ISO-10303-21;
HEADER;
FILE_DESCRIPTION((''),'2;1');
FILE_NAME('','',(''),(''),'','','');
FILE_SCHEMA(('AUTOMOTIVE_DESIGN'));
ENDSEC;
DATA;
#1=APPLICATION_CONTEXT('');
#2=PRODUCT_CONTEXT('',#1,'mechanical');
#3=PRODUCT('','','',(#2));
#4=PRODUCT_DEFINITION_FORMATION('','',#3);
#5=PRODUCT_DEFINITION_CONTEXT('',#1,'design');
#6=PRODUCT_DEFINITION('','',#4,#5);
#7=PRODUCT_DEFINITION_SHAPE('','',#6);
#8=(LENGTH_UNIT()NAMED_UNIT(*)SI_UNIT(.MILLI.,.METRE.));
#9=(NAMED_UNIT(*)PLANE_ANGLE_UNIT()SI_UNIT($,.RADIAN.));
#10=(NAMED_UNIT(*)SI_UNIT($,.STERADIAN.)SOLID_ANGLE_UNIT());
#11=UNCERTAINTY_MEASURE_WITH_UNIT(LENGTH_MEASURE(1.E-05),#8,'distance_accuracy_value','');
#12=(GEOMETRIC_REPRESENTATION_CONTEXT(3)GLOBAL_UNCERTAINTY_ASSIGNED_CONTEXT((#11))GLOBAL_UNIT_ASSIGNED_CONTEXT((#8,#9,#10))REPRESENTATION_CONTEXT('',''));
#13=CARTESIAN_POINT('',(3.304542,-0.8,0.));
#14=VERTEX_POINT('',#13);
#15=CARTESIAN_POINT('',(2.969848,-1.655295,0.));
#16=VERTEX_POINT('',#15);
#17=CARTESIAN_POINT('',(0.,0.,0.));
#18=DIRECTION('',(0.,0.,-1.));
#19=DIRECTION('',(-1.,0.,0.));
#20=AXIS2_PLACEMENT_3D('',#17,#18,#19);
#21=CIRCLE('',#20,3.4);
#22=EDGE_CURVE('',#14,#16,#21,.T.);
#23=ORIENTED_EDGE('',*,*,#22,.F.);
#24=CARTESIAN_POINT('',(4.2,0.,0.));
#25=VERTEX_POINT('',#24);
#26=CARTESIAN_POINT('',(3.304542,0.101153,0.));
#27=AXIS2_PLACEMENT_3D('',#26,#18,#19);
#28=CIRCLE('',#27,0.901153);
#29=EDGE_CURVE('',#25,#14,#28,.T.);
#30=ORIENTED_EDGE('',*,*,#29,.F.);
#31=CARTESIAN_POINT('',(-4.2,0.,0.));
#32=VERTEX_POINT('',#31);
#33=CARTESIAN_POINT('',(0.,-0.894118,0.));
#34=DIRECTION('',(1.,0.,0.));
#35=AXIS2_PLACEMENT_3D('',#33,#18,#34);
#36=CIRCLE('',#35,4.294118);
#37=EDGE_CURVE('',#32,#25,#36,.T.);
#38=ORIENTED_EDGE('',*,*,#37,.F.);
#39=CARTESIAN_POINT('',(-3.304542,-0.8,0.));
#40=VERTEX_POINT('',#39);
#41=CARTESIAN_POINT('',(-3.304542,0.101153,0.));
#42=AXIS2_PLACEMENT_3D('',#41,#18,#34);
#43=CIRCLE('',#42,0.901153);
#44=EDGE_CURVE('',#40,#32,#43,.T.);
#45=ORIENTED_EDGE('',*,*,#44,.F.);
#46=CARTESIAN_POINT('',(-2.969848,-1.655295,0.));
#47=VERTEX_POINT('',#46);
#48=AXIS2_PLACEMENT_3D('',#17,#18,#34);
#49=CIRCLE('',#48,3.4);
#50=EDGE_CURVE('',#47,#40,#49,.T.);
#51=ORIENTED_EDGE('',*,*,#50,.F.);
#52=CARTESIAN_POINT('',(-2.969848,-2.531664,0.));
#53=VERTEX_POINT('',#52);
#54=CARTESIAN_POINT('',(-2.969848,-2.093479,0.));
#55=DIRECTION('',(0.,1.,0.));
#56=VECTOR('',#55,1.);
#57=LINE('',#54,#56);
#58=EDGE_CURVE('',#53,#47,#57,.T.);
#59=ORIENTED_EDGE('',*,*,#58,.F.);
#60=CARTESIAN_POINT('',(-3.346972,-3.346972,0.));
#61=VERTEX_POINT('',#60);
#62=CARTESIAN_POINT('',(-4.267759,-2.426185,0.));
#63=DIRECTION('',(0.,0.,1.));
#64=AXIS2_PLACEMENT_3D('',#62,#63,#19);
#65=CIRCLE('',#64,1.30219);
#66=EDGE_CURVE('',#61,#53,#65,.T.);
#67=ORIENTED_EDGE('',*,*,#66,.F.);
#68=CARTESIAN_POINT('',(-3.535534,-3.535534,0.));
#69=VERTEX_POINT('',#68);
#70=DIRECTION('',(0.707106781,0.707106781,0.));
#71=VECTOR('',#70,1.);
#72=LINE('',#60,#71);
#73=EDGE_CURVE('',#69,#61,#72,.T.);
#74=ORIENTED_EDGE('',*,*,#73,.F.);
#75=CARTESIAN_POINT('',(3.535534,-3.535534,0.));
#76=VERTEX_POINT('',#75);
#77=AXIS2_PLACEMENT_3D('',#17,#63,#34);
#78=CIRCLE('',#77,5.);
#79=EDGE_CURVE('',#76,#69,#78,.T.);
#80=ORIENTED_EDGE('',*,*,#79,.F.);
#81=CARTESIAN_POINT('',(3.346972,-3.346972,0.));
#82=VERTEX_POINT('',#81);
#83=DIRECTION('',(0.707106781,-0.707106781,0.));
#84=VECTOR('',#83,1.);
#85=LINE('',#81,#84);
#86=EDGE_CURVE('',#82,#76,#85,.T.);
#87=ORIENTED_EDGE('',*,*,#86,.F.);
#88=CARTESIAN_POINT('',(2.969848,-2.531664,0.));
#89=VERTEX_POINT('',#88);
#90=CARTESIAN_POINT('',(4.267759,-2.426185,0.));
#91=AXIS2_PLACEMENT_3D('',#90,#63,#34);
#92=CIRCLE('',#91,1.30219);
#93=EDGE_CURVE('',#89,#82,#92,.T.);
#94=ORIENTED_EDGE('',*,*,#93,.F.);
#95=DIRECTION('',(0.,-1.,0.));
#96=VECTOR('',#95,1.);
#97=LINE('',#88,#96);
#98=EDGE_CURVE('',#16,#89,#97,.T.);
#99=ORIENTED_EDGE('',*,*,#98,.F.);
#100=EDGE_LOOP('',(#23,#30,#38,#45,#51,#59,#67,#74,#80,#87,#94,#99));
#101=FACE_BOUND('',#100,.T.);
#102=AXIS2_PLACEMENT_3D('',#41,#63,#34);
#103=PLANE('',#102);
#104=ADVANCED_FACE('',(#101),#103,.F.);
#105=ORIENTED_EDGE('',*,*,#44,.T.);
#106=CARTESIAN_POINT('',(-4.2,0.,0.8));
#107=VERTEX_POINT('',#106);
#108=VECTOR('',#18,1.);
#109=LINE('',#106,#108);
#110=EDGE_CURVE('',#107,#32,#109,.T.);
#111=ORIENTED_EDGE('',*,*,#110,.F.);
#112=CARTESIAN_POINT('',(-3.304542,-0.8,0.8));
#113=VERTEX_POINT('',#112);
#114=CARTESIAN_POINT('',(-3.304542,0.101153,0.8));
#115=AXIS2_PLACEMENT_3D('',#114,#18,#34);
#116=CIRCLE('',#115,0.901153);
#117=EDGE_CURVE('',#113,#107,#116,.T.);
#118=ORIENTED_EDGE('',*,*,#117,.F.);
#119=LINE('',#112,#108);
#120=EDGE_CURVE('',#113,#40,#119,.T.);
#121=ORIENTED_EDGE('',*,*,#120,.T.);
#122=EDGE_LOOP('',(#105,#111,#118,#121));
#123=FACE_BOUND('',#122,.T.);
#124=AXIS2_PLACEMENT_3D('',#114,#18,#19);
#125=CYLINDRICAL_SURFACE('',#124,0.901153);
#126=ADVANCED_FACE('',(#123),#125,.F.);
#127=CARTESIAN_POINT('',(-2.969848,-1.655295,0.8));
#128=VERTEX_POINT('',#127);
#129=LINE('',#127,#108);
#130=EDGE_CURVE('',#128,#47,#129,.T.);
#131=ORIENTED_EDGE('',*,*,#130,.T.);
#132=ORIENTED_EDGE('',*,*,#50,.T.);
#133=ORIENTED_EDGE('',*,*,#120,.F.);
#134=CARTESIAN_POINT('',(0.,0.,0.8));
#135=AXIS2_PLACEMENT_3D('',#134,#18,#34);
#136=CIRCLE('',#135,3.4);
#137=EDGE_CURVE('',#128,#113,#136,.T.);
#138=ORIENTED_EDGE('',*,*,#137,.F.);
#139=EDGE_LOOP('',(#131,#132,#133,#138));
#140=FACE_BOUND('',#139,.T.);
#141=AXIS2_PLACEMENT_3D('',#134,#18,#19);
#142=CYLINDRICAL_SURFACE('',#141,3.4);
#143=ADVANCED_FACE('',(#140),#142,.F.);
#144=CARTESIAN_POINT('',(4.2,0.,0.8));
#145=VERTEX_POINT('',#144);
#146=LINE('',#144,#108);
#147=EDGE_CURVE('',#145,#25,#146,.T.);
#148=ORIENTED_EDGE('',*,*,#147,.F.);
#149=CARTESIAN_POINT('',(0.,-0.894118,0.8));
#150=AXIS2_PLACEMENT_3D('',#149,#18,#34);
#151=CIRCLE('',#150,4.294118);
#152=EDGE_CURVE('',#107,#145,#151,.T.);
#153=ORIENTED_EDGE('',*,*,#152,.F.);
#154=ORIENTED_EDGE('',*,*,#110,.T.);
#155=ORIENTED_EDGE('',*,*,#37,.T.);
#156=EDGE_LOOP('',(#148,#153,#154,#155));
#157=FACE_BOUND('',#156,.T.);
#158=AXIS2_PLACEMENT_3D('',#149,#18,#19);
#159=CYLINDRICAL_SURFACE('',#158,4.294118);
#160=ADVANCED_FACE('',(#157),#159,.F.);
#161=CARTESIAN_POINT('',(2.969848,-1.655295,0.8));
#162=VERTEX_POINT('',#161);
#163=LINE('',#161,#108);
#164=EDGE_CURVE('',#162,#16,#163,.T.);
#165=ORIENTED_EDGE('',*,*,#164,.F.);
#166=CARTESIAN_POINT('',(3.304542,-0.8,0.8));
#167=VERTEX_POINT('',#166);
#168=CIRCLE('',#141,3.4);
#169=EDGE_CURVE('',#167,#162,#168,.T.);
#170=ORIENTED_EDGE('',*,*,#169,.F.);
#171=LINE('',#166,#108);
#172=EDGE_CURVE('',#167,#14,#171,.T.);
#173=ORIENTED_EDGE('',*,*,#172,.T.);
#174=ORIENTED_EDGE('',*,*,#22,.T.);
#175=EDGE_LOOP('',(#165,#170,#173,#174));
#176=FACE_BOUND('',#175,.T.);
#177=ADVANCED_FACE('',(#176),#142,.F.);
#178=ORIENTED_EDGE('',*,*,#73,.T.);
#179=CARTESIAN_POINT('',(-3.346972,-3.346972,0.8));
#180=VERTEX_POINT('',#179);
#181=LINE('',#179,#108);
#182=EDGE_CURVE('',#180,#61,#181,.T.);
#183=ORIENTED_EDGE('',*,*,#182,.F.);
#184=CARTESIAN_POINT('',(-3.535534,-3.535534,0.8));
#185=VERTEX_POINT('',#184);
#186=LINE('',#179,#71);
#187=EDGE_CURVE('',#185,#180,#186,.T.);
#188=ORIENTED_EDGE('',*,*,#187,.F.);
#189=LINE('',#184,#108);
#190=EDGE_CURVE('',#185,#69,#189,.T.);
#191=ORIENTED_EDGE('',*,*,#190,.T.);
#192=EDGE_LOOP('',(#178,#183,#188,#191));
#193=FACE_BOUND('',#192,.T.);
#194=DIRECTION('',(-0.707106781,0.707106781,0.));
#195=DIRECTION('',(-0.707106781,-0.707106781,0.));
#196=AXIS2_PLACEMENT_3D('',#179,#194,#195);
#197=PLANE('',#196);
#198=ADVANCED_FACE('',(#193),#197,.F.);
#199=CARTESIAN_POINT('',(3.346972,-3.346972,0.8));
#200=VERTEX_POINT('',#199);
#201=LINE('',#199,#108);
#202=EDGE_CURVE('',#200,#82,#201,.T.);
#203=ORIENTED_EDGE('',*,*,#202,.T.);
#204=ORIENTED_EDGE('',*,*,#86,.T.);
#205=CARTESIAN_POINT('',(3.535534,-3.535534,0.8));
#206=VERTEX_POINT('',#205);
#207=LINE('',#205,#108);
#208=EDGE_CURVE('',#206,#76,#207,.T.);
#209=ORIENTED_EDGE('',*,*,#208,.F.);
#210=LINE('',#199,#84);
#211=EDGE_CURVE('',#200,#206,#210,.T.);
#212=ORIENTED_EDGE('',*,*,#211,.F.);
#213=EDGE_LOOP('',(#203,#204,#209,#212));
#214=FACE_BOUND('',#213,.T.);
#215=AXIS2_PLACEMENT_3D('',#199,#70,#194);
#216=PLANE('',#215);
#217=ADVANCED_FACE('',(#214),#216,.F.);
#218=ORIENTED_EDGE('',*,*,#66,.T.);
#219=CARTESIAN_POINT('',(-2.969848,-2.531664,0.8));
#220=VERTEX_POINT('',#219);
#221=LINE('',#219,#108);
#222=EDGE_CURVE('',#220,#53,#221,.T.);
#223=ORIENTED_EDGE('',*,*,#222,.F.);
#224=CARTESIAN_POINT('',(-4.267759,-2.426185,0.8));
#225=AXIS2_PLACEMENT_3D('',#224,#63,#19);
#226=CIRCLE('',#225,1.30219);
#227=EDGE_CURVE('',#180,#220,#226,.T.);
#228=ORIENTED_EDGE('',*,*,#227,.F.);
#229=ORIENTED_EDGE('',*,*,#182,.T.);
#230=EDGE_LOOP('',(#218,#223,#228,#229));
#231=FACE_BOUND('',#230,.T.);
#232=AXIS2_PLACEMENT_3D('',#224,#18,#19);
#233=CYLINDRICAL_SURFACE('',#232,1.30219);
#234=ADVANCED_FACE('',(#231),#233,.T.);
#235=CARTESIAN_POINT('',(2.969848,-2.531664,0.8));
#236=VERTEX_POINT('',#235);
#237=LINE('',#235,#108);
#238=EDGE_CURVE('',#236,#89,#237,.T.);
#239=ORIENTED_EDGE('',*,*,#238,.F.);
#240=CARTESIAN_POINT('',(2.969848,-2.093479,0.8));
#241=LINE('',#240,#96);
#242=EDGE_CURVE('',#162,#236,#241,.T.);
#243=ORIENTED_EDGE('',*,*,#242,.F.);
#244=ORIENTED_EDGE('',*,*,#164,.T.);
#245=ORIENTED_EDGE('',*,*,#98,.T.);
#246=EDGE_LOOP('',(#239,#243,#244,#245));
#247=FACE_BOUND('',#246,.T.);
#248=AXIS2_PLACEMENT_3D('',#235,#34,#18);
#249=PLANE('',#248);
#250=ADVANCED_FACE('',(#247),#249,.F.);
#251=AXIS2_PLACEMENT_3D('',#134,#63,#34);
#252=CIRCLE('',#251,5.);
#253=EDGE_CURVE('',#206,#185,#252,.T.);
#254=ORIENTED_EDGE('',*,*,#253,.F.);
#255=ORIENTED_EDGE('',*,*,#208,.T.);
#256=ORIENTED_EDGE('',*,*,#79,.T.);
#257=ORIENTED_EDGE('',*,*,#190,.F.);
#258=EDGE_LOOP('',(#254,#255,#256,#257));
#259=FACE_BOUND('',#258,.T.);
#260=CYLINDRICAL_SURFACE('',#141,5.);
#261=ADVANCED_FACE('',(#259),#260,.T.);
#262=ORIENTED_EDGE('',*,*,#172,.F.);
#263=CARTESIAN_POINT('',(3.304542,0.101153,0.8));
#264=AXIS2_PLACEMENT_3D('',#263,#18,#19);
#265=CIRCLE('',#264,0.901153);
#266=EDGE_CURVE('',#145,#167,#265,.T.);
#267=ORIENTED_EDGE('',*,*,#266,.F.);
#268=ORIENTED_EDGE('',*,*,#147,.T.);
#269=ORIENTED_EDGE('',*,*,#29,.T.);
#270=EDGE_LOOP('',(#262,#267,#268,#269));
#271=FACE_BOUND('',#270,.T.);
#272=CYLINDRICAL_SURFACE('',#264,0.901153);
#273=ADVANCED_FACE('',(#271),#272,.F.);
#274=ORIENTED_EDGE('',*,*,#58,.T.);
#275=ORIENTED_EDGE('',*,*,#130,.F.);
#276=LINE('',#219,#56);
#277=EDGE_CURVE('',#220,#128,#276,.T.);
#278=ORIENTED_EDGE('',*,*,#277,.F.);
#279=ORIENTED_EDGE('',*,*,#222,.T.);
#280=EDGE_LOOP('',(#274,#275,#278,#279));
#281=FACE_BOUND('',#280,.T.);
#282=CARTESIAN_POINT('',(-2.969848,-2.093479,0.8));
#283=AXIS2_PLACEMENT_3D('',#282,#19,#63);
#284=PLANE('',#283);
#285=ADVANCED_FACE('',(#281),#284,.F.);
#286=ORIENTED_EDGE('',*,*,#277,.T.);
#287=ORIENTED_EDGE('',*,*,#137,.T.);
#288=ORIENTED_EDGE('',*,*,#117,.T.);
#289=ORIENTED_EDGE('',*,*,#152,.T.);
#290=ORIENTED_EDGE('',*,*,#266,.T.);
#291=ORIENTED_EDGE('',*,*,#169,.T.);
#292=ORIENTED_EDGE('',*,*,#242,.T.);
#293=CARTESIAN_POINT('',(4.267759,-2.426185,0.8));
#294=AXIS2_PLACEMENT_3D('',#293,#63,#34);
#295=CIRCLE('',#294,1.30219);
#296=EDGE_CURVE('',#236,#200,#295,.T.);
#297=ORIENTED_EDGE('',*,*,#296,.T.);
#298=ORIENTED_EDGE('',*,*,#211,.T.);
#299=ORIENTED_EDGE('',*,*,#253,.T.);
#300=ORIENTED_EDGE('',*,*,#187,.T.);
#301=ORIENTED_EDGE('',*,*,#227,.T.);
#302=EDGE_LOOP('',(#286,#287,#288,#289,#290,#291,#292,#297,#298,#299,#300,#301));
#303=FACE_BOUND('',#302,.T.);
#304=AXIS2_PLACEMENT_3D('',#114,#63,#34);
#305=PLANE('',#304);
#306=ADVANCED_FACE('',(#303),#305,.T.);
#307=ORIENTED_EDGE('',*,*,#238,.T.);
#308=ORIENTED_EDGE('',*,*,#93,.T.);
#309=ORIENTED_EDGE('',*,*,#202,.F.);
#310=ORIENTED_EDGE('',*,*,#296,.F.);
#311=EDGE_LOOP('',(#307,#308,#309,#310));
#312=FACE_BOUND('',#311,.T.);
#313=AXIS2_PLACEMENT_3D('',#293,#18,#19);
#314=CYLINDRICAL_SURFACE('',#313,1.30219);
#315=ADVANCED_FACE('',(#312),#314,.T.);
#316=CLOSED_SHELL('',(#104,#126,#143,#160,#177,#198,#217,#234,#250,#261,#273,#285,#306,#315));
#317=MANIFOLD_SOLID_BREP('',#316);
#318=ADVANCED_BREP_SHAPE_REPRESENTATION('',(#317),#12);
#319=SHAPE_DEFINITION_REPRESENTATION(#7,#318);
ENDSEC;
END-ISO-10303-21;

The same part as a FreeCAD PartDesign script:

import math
import FreeCAD as App
import Part
import Sketcher

V = App.Vector
Q = App.Units.Quantity

doc = App.newDocument("Part")
body = doc.addObject("PartDesign::Body", "Body")

sketch1 = body.newObject("Sketcher::SketchObject", "Sketch")
sketch1.AttachmentSupport = (doc.getObject("XY_Plane"), [""])
sketch1.MapMode = "FlatFace"
sketch1.addGeometry(Part.LineSegment(V(-2.97, -2.53, 0), V(-2.97, -1.66, 0)), False)
sketch1.addGeometry(Part.ArcOfCircle(Part.Circle(V(0, 0, 0), V(0, 0, 1), 3.4), math.radians(-166.39), math.radians(-150.87)), False)
sketch1.addGeometry(Part.ArcOfCircle(Part.Circle(V(-3.3, 0.1, 0), V(0, 0, 1), 0.9), math.radians(-174), math.radians(-90)), False)
sketch1.addGeometry(Part.ArcOfCircle(Part.Circle(V(0, -0.89, 0), V(0, 0, 1), 4.29), math.radians(12), math.radians(168)), False)
sketch1.addGeometry(Part.ArcOfCircle(Part.Circle(V(3.3, 0.1, 0), V(0, 0, 1), 0.9), math.radians(-90), math.radians(-6)), False)
sketch1.addGeometry(Part.ArcOfCircle(Part.Circle(V(0, 0, 0), V(0, 0, 1), 3.4), math.radians(-29.13), math.radians(-13.61)), False)
sketch1.addGeometry(Part.LineSegment(V(2.97, -1.66, 0), V(2.97, -2.53, 0)), False)
sketch1.addGeometry(Part.ArcOfCircle(Part.Circle(V(4.27, -2.43, 0), V(0, 0, 1), 1.3), math.radians(-175), math.radians(-135)), False)
sketch1.addGeometry(Part.LineSegment(V(3.35, -3.35, 0), V(3.54, -3.54, 0)), False)
sketch1.addGeometry(Part.ArcOfCircle(Part.Circle(V(0, 0, 0), V(0, 0, 1), 5), math.radians(-45), math.radians(225)), False)
sketch1.addGeometry(Part.LineSegment(V(-3.54, -3.54, 0), V(-3.35, -3.35, 0)), False)
sketch1.addGeometry(Part.ArcOfCircle(Part.Circle(V(-4.27, -2.43, 0), V(0, 0, 1), 1.3), math.radians(-45), math.radians(-5)), False)
sketch1.addConstraint(Sketcher.Constraint("Coincident", 0, 2, 1, 2))
sketch1.addConstraint(Sketcher.Constraint("Coincident", 1, 1, 2, 2))
sketch1.addConstraint(Sketcher.Constraint("Coincident", 2, 1, 3, 2))
sketch1.addConstraint(Sketcher.Constraint("Coincident", 3, 1, 4, 2))
sketch1.addConstraint(Sketcher.Constraint("Coincident", 4, 1, 5, 2))
sketch1.addConstraint(Sketcher.Constraint("Coincident", 5, 1, 6, 1))
sketch1.addConstraint(Sketcher.Constraint("Coincident", 6, 2, 7, 1))
sketch1.addConstraint(Sketcher.Constraint("Tangent", 7, 2, 8, 1))
sketch1.addConstraint(Sketcher.Constraint("Coincident", 8, 2, 9, 1))
sketch1.addConstraint(Sketcher.Constraint("Coincident", 9, 2, 10, 1))
sketch1.addConstraint(Sketcher.Constraint("Tangent", 10, 2, 11, 1))
sketch1.addConstraint(Sketcher.Constraint("Coincident", 11, 2, 0, 1))
sketch1.addConstraint(Sketcher.Constraint("Vertical", 0))
sketch1.addConstraint(Sketcher.Constraint("Vertical", 6))
sketch1.addConstraint(Sketcher.Constraint("Coincident", 1, 3, -1, 1))
sketch1.addConstraint(Sketcher.Constraint("Coincident", 5, 3, -1, 1))
sketch1.addConstraint(Sketcher.Constraint("Coincident", 9, 3, -1, 1))
sketch1.addConstraint(Sketcher.Constraint("Equal", 2, 4))
sketch1.addConstraint(Sketcher.Constraint("Equal", 1, 5))
sketch1.addConstraint(Sketcher.Constraint("Equal", 7, 11))
sketch1.addConstraint(Sketcher.Constraint("Symmetric", 2, 1, 3, 1, -1, 1))
sketch1.addConstraint(Sketcher.Constraint("Symmetric", 2, 3, 4, 3, -2))
sketch1.addConstraint(Sketcher.Constraint("Symmetric", 7, 3, 11, 3, -2))
sketch1.addConstraint(Sketcher.Constraint("Perpendicular", 8, 10))
sketch1.addConstraint(Sketcher.Constraint("Horizontal", 0, 2, 5, 1))
sketch1.addConstraint(Sketcher.Constraint("Horizontal", 8, 2, 9, 2))
sketch1.addConstraint(Sketcher.Constraint("Vertical", 2, 3, 1, 1))
sketch1.addConstraint(Sketcher.Constraint("Radius", 9, Q("5 mm")))
sketch1.addConstraint(Sketcher.Constraint("Radius", 1, Q("3.4 mm")))
sketch1.addConstraint(Sketcher.Constraint("DistanceY", 1, 1, -1, 1, Q("0.8 mm")))
sketch1.addConstraint(Sketcher.Constraint("DistanceX", 2, 1, -1, 1, Q("4.2 mm")))
sketch1.addConstraint(Sketcher.Constraint("Radius", 7, Q("1.30219 mm")))
sketch1.addConstraint(Sketcher.Constraint("Radius", 3, Q("4.294118 mm")))
sketch1.addConstraint(Sketcher.Constraint("DistanceY", 0, 1, 0, 2, Q("0.876369 mm")))
sketch1.addConstraint(Sketcher.Constraint("DistanceX", 2, 3, 7, 3, Q("7.572302 mm")))
sketch1.addConstraint(Sketcher.Constraint("DistanceX", 0, 2, -1, 1, Q("2.969848 mm")))
pad1 = body.newObject("PartDesign::Pad", "Pad")
pad1.Profile = sketch1
pad1.Length = 0.8

doc.recompute()
